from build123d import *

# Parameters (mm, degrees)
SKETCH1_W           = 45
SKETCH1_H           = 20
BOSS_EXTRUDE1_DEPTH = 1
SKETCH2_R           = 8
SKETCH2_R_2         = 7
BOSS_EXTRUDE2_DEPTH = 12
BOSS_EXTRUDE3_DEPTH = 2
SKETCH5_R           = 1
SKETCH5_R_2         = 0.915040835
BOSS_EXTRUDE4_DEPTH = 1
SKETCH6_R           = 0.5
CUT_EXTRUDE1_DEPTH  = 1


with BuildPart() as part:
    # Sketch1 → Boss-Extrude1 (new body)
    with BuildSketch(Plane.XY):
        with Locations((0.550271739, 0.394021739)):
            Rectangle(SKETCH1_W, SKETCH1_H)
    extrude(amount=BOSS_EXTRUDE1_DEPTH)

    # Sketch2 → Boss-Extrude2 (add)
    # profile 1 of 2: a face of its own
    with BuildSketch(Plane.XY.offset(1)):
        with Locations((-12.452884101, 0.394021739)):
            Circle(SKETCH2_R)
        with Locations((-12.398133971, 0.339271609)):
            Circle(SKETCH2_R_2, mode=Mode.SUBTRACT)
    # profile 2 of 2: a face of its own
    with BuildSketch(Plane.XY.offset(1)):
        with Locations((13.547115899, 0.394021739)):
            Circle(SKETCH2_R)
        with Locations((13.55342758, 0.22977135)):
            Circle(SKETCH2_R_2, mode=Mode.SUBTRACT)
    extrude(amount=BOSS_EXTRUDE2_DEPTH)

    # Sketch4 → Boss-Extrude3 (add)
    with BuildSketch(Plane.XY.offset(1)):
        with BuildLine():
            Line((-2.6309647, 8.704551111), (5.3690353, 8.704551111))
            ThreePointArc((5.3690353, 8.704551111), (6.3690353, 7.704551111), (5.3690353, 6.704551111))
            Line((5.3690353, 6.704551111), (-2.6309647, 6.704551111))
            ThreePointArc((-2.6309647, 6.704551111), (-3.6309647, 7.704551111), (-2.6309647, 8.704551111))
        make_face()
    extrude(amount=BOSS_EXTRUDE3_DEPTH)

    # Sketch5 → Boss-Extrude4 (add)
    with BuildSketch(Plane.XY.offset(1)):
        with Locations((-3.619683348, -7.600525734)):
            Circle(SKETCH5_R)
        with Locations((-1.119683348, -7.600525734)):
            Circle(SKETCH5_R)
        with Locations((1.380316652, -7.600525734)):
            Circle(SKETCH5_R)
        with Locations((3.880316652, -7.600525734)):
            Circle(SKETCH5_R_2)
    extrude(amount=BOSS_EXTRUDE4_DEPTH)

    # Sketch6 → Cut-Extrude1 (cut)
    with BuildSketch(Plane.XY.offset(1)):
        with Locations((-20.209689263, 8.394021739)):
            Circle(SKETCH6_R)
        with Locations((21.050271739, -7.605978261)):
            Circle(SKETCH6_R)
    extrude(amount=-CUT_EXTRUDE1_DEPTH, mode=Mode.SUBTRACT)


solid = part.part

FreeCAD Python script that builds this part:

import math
import FreeCAD as App
import Part
import Sketcher
from FreeCAD import Vector
Q = App.Units.Quantity

doc = App.newDocument("Part")
body = doc.addObject("PartDesign::Body", "Body")

sketch1 = body.newObject("Sketcher::SketchObject", "Sketch")
sketch1.AttachmentSupport = (doc.getObject("XY_Plane"), [""])
sketch1.MapMode = "FlatFace"
sketch1.addGeometry(Part.LineSegment(Vector(-22, 10, 0), Vector(-22, -10, 0)), False)
sketch1.addGeometry(Part.LineSegment(Vector(-22, -10, 0), Vector(23, -10, 0)), False)
sketch1.addGeometry(Part.LineSegment(Vector(23, -10, 0), Vector(23, 10, 0)), False)
sketch1.addGeometry(Part.LineSegment(Vector(23, 10, 0), Vector(-22, 10, 0)), False)
sketch1.addConstraint(Sketcher.Constraint("Coincident", 0, 2, 1, 1))
sketch1.addConstraint(Sketcher.Constraint("Coincident", 1, 2, 2, 1))
sketch1.addConstraint(Sketcher.Constraint("Coincident", 2, 2, 3, 1))
sketch1.addConstraint(Sketcher.Constraint("Coincident", 3, 2, 0, 1))
sketch1.addConstraint(Sketcher.Constraint("Vertical", 0))
sketch1.addConstraint(Sketcher.Constraint("Horizontal", 1))
sketch1.addConstraint(Sketcher.Constraint("Vertical", 2))
sketch1.addConstraint(Sketcher.Constraint("Horizontal", 3))
sketch1.addConstraint(Sketcher.Constraint("DistanceX", 1, 1, 1, 2, Q("45 mm")))
sketch1.addConstraint(Sketcher.Constraint("DistanceY", 0, 2, 0, 1, Q("20 mm")))
sketch1.addConstraint(Sketcher.Constraint("DistanceX", 0, 2, -1, 1, Q("21.949728 mm")))
sketch1.addConstraint(Sketcher.Constraint("DistanceY", 0, 2, -1, 1, Q("9.605978 mm")))
pad1 = body.newObject("PartDesign::Pad", "Pad")
pad1.Profile = sketch1
pad1.Length = 1

sketch2 = body.newObject("Sketcher::SketchObject", "Sketch001")
sketch2.AttachmentSupport = (doc.getObject("XY_Plane"), [""])
sketch2.MapMode = "FlatFace"
sketch2.AttachmentOffset = App.Placement(Vector(0, 0, 1), App.Rotation())
sketch2.addGeometry(Part.Circle(Vector(-12, 0, 0), Vector(0, 0, 1), 8), False)
sketch2.addGeometry(Part.Circle(Vector(-12, 0, 0), Vector(0, 0, 1), 7), False)
sketch2.addGeometry(Part.Circle(Vector(14, 0, 0), Vector(0, 0, 1), 8), False)
sketch2.addGeometry(Part.Circle(Vector(14, 0, 0), Vector(0, 0, 1), 7), False)
sketch2.addConstraint(Sketcher.Constraint("Equal", 0, 2))
sketch2.addConstraint(Sketcher.Constraint("Equal", 1, 3))
sketch2.addConstraint(Sketcher.Constraint("Horizontal", 0, 3, 2, 3))
sketch2.addConstraint(Sketcher.Constraint("Diameter", 0, Q("16 mm")))
sketch2.addConstraint(Sketcher.Constraint("Diameter", 1, Q("14 mm")))
sketch2.addConstraint(Sketcher.Constraint("DistanceX", 0, 3, 2, 3, Q("26 mm")))
sketch2.addConstraint(Sketcher.Constraint("DistanceY", 3, 3, 1, 3, Q("0.1095 mm")))
sketch2.addConstraint(Sketcher.Constraint("DistanceY", -1, 1, 0, 3, Q("0.394022 mm")))
sketch2.addConstraint(Sketcher.Constraint("DistanceY", -1, 1, 1, 3, Q("0.339272 mm")))
sketch2.addConstraint(Sketcher.Constraint("DistanceX", 0, 3, 1, 3, Q("0.05475 mm")))
sketch2.addConstraint(Sketcher.Constraint("DistanceX", 2, 3, 3, 3, Q("0.006312 mm")))
sketch2.addConstraint(Sketcher.Constraint("DistanceX", 0, 3, -1, 1, Q("12.452884 mm")))
pad2 = body.newObject("PartDesign::Pad", "Pad001")
pad2.Profile = sketch2
pad2.Length = 12

sketch3 = body.newObject("Sketcher::SketchObject", "Sketch002")
sketch3.AttachmentSupport = (doc.getObject("XY_Plane"), [""])
sketch3.MapMode = "FlatFace"
sketch3.AttachmentOffset = App.Placement(Vector(0, 0, 1), App.Rotation())
sketch3.addGeometry(Part.LineSegment(Vector(5.4, 8.7, 0), Vector(-2.6, 8.7, 0)), False)
sketch3.addGeometry(Part.ArcOfCircle(Part.Circle(Vector(-2.6, 7.7, 0), Vector(0, 0, 1), 1), math.radians(90), math.radians(270)), False)
sketch3.addGeometry(Part.LineSegment(Vector(-2.6, 6.7, 0), Vector(5.4, 6.7, 0)), False)
sketch3.addGeometry(Part.ArcOfCircle(Part.Circle(Vector(5.4, 7.7, 0), Vector(0, 0, 1), 1), math.radians(-90), math.radians(90)), False)
sketch3.addConstraint(Sketcher.Constraint("Tangent", 0, 2, 1, 1))
sketch3.addConstraint(Sketcher.Constraint("Tangent", 1, 2, 2, 1))
sketch3.addConstraint(Sketcher.Constraint("Tangent", 2, 2, 3, 1))
sketch3.addConstraint(Sketcher.Constraint("Tangent", 3, 2, 0, 1))
sketch3.addConstraint(Sketcher.Constraint("Horizontal", 0))
sketch3.addConstraint(Sketcher.Constraint("Horizontal", 2))
sketch3.addConstraint(Sketcher.Constraint("Radius", 1, Q("1 mm")))
sketch3.addConstraint(Sketcher.Constraint("DistanceX", 0, 2, 0, 1, Q("8 mm")))
sketch3.addConstraint(Sketcher.Constraint("DistanceY", -1, 1, 1, 3, Q("7.704551 mm")))
sketch3.addConstraint(Sketcher.Constraint("DistanceX", 1, 3, -1, 1, Q("2.630965 mm")))
pad3 = body.newObject("PartDesign::Pad", "Pad002")
pad3.Profile = sketch3
pad3.Length = 2

sketch4 = body.newObject("Sketcher::SketchObject", "Sketch003")
sketch4.AttachmentSupport = (doc.getObject("XY_Plane"), [""])
sketch4.MapMode = "FlatFace"
sketch4.AttachmentOffset = App.Placement(Vector(0, 0, 1), App.Rotation())
sketch4.addGeometry(Part.Circle(Vector(-3.6, -7.6, 0), Vector(0, 0, 1), 1), False)
sketch4.addGeometry(Part.Circle(Vector(-1.1, -7.6, 0), Vector(0, 0, 1), 1), False)
sketch4.addGeometry(Part.Circle(Vector(1.4, -7.6, 0), Vector(0, 0, 1), 1), False)
sketch4.addGeometry(Part.Circle(Vector(3.9, -7.6, 0), Vector(0, 0, 1), 0.9), False)
sketch4.addConstraint(Sketcher.Constraint("Equal", 0, 1))
sketch4.addConstraint(Sketcher.Constraint("Equal", 1, 2))
sketch4.addConstraint(Sketcher.Constraint("Horizontal", 0, 3, 1, 3))
sketch4.addConstraint(Sketcher.Constraint("Horizontal", 1, 3, 2, 3))
sketch4.addConstraint(Sketcher.Constraint("Horizontal", 2, 3, 3, 3))
sketch4.addConstraint(Sketcher.Constraint("Diameter", 0, Q("2 mm")))
sketch4.addConstraint(Sketcher.Constraint("DistanceX", 0, 3, 2, 3, Q("5 mm")))
sketch4.addConstraint(Sketcher.Constraint("DistanceX", 1, 3, 3, 3, Q("5 mm")))
sketch4.addConstraint(Sketcher.Constraint("DistanceX", 0, 3, 1, 3, Q("2.5 mm")))
sketch4.addConstraint(Sketcher.Constraint("Diameter", 3, Q("1.830082 mm")))
sketch4.addConstraint(Sketcher.Constraint("DistanceX", 0, 3, -1, 1, Q("3.619683 mm")))
sketch4.addConstraint(Sketcher.Constraint("DistanceY", 0, 3, -1, 1, Q("7.600526 mm")))
pad4 = body.newObject("PartDesign::Pad", "Pad003")
pad4.Profile = sketch4
pad4.Length = 1

sketch5 = body.newObject("Sketcher::SketchObject", "Sketch004")
sketch5.AttachmentSupport = (doc.getObject("XY_Plane"), [""])
sketch5.MapMode = "FlatFace"
sketch5.AttachmentOffset = App.Placement(Vector(0, 0, 1), App.Rotation())
sketch5.addGeometry(Part.Circle(Vector(-20.2, 8.4, 0), Vector(0, 0, 1), 0.5), False)
sketch5.addGeometry(Part.Circle(Vector(21.1, -7.6, 0), Vector(0, 0, 1), 0.5), False)
sketch5.addConstraint(Sketcher.Constraint("Equal", 0, 1))
sketch5.addConstraint(Sketcher.Constraint("Diameter", 0, Q("1 mm")))
sketch5.addConstraint(Sketcher.Constraint("DistanceY", 1, 3, 0, 3, Q("16 mm")))
sketch5.addConstraint(Sketcher.Constraint("DistanceX", 0, 3, -1, 1, Q("20.209689 mm")))
sketch5.addConstraint(Sketcher.Constraint("DistanceY", -1, 1, 0, 3, Q("8.394022 mm")))
sketch5.addConstraint(Sketcher.Constraint("DistanceX", -1, 1, 1, 3, Q("21.050272 mm")))
pocket1 = body.newObject("PartDesign::Pocket", "Pocket")
pocket1.Profile = sketch5
pocket1.Length = 1

doc.recompute()
